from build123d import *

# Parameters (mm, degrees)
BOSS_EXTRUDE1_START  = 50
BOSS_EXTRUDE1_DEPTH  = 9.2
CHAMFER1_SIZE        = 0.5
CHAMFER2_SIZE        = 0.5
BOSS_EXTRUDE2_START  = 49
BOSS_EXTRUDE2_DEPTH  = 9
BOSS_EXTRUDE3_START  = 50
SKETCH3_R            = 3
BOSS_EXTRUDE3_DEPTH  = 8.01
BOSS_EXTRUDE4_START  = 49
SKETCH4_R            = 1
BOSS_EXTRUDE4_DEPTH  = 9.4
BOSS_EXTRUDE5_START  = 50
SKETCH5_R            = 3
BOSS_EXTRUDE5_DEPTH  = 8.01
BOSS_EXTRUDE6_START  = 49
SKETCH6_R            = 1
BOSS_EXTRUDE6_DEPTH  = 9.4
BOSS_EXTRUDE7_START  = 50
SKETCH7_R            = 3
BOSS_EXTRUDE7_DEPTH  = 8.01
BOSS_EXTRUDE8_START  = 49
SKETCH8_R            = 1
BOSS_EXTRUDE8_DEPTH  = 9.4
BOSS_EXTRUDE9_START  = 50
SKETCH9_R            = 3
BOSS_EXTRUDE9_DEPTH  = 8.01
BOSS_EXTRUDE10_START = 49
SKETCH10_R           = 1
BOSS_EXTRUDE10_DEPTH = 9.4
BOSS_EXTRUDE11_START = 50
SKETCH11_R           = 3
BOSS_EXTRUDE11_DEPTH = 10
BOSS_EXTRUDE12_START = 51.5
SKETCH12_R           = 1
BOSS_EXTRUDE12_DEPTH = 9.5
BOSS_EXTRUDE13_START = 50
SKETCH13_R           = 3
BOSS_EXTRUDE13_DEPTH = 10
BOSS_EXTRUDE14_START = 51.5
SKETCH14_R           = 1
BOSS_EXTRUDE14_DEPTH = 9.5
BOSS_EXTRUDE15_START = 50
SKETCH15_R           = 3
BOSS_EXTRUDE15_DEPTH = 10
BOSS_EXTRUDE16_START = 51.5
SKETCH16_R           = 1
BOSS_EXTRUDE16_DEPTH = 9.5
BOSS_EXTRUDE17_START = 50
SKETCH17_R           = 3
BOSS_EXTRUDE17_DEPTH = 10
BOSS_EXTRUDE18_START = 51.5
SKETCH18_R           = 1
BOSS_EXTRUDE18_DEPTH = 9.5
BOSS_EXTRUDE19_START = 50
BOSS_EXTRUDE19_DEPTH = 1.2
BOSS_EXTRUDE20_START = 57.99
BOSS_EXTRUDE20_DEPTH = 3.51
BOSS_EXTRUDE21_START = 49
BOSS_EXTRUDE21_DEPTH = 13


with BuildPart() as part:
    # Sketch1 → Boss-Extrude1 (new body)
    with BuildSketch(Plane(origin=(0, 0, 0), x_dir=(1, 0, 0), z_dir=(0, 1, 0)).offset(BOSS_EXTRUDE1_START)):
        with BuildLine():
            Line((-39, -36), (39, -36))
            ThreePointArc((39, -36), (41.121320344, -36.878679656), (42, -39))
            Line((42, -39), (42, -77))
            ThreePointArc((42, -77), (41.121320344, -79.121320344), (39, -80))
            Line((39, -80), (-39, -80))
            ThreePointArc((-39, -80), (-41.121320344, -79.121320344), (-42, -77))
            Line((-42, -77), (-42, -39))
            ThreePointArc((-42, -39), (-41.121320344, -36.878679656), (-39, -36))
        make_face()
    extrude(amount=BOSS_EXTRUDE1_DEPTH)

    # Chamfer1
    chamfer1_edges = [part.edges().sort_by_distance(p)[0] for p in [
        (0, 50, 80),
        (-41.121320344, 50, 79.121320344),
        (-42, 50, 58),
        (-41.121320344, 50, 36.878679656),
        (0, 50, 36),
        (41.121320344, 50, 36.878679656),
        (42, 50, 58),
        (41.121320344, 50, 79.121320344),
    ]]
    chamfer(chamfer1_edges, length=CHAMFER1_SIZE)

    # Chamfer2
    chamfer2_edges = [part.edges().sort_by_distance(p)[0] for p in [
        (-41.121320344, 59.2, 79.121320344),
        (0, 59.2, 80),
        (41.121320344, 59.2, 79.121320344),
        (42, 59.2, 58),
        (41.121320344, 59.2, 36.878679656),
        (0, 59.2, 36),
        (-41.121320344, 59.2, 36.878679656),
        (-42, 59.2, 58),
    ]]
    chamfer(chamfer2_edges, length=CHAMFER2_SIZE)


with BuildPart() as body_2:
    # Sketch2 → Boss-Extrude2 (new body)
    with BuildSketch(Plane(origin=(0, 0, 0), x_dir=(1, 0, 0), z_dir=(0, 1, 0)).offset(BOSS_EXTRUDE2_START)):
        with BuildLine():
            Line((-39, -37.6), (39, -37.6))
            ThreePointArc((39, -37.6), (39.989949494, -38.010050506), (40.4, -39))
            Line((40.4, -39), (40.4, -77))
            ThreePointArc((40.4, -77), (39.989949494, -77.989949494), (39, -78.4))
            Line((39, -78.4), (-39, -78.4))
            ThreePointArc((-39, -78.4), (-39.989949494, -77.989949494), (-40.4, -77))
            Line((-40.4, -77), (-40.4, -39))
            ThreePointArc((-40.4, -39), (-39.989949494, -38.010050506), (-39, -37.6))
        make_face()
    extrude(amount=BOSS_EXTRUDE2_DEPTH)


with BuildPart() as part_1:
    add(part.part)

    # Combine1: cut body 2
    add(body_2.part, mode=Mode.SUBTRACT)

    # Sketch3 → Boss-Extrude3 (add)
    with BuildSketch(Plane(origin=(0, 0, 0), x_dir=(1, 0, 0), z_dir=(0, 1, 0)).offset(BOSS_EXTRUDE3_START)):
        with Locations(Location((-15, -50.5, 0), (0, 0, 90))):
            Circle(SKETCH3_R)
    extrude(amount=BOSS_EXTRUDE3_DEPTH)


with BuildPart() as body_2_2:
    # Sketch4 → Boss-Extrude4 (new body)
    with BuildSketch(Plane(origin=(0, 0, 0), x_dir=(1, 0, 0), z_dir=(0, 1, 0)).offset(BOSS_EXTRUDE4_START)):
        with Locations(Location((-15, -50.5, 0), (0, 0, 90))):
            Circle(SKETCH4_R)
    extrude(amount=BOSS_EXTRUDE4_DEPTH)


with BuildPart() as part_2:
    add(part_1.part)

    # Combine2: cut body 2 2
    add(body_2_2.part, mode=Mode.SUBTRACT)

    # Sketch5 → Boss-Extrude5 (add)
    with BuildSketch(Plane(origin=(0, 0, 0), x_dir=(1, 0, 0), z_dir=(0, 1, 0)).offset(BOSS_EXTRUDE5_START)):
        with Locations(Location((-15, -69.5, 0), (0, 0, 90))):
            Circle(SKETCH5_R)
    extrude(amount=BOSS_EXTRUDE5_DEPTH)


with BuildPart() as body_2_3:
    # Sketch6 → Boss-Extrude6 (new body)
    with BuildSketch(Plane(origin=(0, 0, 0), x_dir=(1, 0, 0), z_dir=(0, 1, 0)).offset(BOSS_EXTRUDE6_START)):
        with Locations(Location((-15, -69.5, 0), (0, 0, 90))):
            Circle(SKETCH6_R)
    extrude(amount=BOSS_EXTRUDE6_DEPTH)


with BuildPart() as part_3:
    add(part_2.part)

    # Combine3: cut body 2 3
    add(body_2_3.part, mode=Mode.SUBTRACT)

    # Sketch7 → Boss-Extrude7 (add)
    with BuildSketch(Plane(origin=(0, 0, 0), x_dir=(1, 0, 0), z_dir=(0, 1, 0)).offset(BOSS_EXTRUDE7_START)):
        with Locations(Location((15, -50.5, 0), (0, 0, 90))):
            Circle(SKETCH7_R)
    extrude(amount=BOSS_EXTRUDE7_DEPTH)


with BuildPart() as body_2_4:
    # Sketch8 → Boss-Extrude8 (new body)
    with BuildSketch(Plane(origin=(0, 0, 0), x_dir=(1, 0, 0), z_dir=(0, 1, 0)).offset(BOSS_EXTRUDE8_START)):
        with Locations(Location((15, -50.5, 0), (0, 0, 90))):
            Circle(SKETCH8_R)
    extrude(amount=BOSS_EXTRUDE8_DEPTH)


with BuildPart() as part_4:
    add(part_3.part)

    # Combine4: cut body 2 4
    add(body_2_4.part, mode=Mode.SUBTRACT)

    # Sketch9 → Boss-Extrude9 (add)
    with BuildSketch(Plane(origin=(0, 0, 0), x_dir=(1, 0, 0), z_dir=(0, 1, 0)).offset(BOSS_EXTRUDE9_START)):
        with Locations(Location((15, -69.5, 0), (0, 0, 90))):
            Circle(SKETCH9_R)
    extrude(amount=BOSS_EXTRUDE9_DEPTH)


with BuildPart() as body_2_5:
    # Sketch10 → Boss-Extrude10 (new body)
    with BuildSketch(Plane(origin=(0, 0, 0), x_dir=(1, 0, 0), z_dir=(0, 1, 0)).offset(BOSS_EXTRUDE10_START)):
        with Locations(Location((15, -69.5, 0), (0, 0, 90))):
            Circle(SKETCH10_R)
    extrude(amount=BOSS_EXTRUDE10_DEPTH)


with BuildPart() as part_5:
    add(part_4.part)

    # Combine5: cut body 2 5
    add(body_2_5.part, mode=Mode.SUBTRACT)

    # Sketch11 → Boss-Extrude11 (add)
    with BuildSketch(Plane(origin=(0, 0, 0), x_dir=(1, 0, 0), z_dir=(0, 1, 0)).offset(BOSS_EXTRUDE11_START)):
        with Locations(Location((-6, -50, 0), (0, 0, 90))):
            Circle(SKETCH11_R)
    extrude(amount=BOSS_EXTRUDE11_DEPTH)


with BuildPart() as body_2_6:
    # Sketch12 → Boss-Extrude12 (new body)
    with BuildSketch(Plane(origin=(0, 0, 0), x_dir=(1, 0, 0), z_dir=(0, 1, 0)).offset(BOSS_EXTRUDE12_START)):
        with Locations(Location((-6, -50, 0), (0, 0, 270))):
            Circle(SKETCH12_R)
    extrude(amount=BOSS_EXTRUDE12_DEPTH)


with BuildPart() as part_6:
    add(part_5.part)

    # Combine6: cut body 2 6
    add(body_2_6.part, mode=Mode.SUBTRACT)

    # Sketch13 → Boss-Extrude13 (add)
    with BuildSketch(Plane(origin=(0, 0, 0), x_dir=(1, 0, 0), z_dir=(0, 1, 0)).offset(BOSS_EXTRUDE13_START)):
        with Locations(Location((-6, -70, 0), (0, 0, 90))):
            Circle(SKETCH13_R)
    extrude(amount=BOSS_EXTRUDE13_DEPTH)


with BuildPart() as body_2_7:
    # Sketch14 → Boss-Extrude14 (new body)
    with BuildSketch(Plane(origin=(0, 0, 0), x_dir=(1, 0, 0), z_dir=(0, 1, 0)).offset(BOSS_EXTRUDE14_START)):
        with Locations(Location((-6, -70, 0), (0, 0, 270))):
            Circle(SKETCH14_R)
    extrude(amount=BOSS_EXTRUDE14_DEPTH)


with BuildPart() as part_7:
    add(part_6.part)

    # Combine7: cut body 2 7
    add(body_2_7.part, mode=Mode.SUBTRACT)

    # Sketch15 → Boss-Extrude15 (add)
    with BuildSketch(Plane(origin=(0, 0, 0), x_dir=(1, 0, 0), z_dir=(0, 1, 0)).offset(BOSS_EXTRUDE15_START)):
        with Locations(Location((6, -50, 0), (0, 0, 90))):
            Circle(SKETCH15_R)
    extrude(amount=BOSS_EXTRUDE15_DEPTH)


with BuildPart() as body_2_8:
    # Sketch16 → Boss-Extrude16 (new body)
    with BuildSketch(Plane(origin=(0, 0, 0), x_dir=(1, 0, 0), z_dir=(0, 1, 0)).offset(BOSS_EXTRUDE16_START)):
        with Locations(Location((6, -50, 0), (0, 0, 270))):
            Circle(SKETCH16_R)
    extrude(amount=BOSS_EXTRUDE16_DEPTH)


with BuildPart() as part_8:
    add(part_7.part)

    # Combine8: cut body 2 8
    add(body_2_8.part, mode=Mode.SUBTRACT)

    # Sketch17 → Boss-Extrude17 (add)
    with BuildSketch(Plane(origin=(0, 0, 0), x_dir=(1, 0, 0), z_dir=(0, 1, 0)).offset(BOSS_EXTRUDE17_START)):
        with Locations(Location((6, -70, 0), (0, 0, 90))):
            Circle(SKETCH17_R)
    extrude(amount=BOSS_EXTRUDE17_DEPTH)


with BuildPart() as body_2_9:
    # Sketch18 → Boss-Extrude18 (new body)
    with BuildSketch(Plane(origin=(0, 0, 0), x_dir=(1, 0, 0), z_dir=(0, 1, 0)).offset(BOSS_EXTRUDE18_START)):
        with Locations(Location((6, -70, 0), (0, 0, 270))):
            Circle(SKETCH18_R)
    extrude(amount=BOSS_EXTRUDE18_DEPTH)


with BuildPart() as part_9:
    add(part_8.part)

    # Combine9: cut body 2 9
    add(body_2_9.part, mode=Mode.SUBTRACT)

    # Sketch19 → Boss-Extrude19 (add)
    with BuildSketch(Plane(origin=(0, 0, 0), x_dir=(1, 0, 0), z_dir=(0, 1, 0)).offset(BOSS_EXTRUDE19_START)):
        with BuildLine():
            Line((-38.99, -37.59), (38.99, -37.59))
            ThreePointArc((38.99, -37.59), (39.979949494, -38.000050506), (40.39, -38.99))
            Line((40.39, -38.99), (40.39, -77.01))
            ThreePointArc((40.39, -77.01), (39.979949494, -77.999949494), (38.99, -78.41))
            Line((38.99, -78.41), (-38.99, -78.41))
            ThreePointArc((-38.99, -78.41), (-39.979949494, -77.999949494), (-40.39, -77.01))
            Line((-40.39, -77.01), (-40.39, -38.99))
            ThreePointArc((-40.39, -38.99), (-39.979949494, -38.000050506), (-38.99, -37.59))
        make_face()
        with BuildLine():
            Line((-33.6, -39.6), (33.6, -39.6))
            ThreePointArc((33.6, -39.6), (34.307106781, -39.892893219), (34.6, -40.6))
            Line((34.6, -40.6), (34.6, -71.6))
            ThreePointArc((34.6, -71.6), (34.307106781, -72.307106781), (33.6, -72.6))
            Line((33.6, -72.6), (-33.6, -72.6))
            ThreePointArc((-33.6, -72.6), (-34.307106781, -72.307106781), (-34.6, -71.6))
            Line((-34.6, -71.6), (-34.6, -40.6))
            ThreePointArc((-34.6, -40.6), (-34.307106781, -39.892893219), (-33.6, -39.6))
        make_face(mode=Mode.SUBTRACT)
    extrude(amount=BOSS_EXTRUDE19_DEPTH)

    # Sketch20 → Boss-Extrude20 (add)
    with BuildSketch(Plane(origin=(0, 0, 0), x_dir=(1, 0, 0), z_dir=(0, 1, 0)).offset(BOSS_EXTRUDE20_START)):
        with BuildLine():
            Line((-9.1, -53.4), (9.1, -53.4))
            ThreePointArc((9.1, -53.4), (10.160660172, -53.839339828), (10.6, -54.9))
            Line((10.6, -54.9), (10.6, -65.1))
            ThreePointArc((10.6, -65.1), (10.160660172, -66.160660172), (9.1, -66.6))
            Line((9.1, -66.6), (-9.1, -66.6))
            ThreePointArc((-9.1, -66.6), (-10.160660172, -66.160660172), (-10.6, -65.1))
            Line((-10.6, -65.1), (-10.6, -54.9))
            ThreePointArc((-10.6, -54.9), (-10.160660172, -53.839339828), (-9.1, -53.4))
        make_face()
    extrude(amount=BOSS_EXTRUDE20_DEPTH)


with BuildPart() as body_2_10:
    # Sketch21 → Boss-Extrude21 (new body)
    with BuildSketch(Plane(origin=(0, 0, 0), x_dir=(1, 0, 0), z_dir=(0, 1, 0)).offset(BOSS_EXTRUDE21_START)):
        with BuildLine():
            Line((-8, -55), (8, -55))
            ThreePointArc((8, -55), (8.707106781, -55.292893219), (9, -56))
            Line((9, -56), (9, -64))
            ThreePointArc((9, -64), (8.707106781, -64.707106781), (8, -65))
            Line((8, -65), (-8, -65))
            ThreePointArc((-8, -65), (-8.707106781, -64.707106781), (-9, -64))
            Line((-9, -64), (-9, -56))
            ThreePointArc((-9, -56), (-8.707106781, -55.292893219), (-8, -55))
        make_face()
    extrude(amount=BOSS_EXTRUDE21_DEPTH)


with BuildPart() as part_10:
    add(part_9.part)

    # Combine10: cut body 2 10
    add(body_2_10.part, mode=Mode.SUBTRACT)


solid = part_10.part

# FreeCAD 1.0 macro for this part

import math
import FreeCAD as App
import Part
import Sketcher
from FreeCAD import Vector


def edges_at(feature, points):
    """Names of the edges that pass closest to the given points."""
    edges = feature.Shape.Edges
    near = lambda p: min(range(len(edges)), key=lambda i: edges[i].distToShape(Part.Vertex(*p))[0])
    return sorted({f"Edge{near(p) + 1}" for p in points})

doc = App.newDocument("Part")
body = doc.addObject("PartDesign::Body", "Body")

sketch1 = body.newObject("Sketcher::SketchObject", "Sketch")
sketch1.AttachmentSupport = (doc.getObject("XZ_Plane"), [""])
sketch1.MapMode = "FlatFace"
sketch1.AttachmentOffset = App.Placement(Vector(0, 0, -50), App.Rotation())
sketch1.addGeometry(Part.LineSegment(Vector(39, 36, 0), Vector(-39, 36, 0)), False)
sketch1.addGeometry(Part.ArcOfCircle(Part.Circle(Vector(-39, 39, 0), Vector(0, 0, 1), 3), math.radians(180), math.radians(270)), False)
sketch1.addGeometry(Part.LineSegment(Vector(-42, 39, 0), Vector(-42, 77, 0)), False)
sketch1.addGeometry(Part.ArcOfCircle(Part.Circle(Vector(-39, 77, 0), Vector(0, 0, 1), 3), math.radians(90), math.radians(180)), False)
sketch1.addGeometry(Part.LineSegment(Vector(-39, 80, 0), Vector(39, 80, 0)), False)
sketch1.addGeometry(Part.ArcOfCircle(Part.Circle(Vector(39, 77, 0), Vector(0, 0, 1), 3), math.radians(0), math.radians(90)), False)
sketch1.addGeometry(Part.LineSegment(Vector(42, 77, 0), Vector(42, 39, 0)), False)
sketch1.addGeometry(Part.ArcOfCircle(Part.Circle(Vector(39, 39, 0), Vector(0, 0, 1), 3), math.radians(-90), math.radians(0)), False)
sketch1.addConstraint(Sketcher.Constraint("Tangent", 0, 2, 1, 2))
sketch1.addConstraint(Sketcher.Constraint("Tangent", 1, 1, 2, 1))
sketch1.addConstraint(Sketcher.Constraint("Tangent", 2, 2, 3, 2))
sketch1.addConstraint(Sketcher.Constraint("Tangent", 3, 1, 4, 1))
sketch1.addConstraint(Sketcher.Constraint("Tangent", 4, 2, 5, 2))
sketch1.addConstraint(Sketcher.Constraint("Tangent", 5, 1, 6, 1))
sketch1.addConstraint(Sketcher.Constraint("Tangent", 6, 2, 7, 2))
sketch1.addConstraint(Sketcher.Constraint("Tangent", 7, 1, 0, 1))
sketch1.addConstraint(Sketcher.Constraint("Horizontal", 0))
sketch1.addConstraint(Sketcher.Constraint("Vertical", 2))
sketch1.addConstraint(Sketcher.Constraint("Horizontal", 4))
sketch1.addConstraint(Sketcher.Constraint("Vertical", 6))
sketch1.addConstraint(Sketcher.Constraint("Equal", 1, 3))
sketch1.addConstraint(Sketcher.Constraint("Equal", 3, 5))
sketch1.addConstraint(Sketcher.Constraint("Equal", 5, 7))
sketch1.addConstraint(Sketcher.Constraint("Radius", 1, 3.0))
sketch1.addConstraint(Sketcher.Constraint("DistanceX", 0, 2, 0, 1, 78.0))
sketch1.addConstraint(Sketcher.Constraint("DistanceY", 2, 1, 2, 2, 38.0))
sketch1.addConstraint(Sketcher.Constraint("DistanceX", 1, 3, -1, 1, 39.0))
sketch1.addConstraint(Sketcher.Constraint("DistanceY", -1, 1, 1, 3, 39.0))
pad1 = body.newObject("PartDesign::Pad", "Pad")
pad1.Profile = sketch1
pad1.Length = 9.2
pad1.Reversed = True
doc.recompute()

chamfer = body.newObject("PartDesign::Chamfer", "Chamfer")
chamfer.Base = (pad1, edges_at(pad1, [
    (0, 50, 80),
    (-41.121, 50, 79.121),
    (-42, 50, 58),
    (-41.121, 50, 36.879),
    (0, 50, 36),
    (41.121, 50, 36.879),
    (42, 50, 58),
    (41.121, 50, 79.121),
]))
chamfer.Size = 0.5
doc.recompute()

chamfer2 = body.newObject("PartDesign::Chamfer", "Chamfer001")
chamfer2.Base = (chamfer, edges_at(chamfer, [
    (-41.121, 59.2, 79.121),
    (0, 59.2, 80),
    (41.121, 59.2, 79.121),
    (42, 59.2, 58),
    (41.121, 59.2, 36.879),
    (0, 59.2, 36),
    (-41.121, 59.2, 36.879),
    (-42, 59.2, 58),
]))
chamfer2.Size = 0.5
body2 = doc.addObject("PartDesign::Body", "Body001")

sketch2 = body2.newObject("Sketcher::SketchObject", "Sketch001")
sketch2.AttachmentSupport = (doc.getObject("XZ_Plane001"), [""])
sketch2.MapMode = "FlatFace"
sketch2.AttachmentOffset = App.Placement(Vector(0, 0, -49), App.Rotation())
sketch2.addGeometry(Part.LineSegment(Vector(39, 37.6, 0), Vector(-39, 37.6, 0)), False)
sketch2.addGeometry(Part.ArcOfCircle(Part.Circle(Vector(-39, 39, 0), Vector(0, 0, 1), 1.4), math.radians(180), math.radians(270)), False)
sketch2.addGeometry(Part.LineSegment(Vector(-40.4, 39, 0), Vector(-40.4, 77, 0)), False)
sketch2.addGeometry(Part.ArcOfCircle(Part.Circle(Vector(-39, 77, 0), Vector(0, 0, 1), 1.4), math.radians(90), math.radians(180)), False)
sketch2.addGeometry(Part.LineSegment(Vector(-39, 78.4, 0), Vector(39, 78.4, 0)), False)
sketch2.addGeometry(Part.ArcOfCircle(Part.Circle(Vector(39, 77, 0), Vector(0, 0, 1), 1.4), math.radians(0), math.radians(90)), False)
sketch2.addGeometry(Part.LineSegment(Vector(40.4, 77, 0), Vector(40.4, 39, 0)), False)
sketch2.addGeometry(Part.ArcOfCircle(Part.Circle(Vector(39, 39, 0), Vector(0, 0, 1), 1.4), math.radians(-90), math.radians(0)), False)
sketch2.addConstraint(Sketcher.Constraint("Tangent", 0, 2, 1, 2))
sketch2.addConstraint(Sketcher.Constraint("Tangent", 1, 1, 2, 1))
sketch2.addConstraint(Sketcher.Constraint("Tangent", 2, 2, 3, 2))
sketch2.addConstraint(Sketcher.Constraint("Tangent", 3, 1, 4, 1))
sketch2.addConstraint(Sketcher.Constraint("Tangent", 4, 2, 5, 2))
sketch2.addConstraint(Sketcher.Constraint("Tangent", 5, 1, 6, 1))
sketch2.addConstraint(Sketcher.Constraint("Tangent", 6, 2, 7, 2))
sketch2.addConstraint(Sketcher.Constraint("Tangent", 7, 1, 0, 1))
sketch2.addConstraint(Sketcher.Constraint("Horizontal", 0))
sketch2.addConstraint(Sketcher.Constraint("Vertical", 2))
sketch2.addConstraint(Sketcher.Constraint("Horizontal", 4))
sketch2.addConstraint(Sketcher.Constraint("Vertical", 6))
sketch2.addConstraint(Sketcher.Constraint("Equal", 1, 3))
sketch2.addConstraint(Sketcher.Constraint("Equal", 3, 5))
sketch2.addConstraint(Sketcher.Constraint("Equal", 5, 7))
sketch2.addConstraint(Sketcher.Constraint("Radius", 1, 1.4))
sketch2.addConstraint(Sketcher.Constraint("DistanceX", 0, 2, 0, 1, 78.0))
sketch2.addConstraint(Sketcher.Constraint("DistanceY", 2, 1, 2, 2, 38.0))
sketch2.addConstraint(Sketcher.Constraint("DistanceX", 1, 3, -1, 1, 39.0))
sketch2.addConstraint(Sketcher.Constraint("DistanceY", -1, 1, 1, 3, 39.0))
pad2 = body2.newObject("PartDesign::Pad", "Pad001")
pad2.Profile = sketch2
pad2.Length = 9
pad2.Reversed = True
doc.recompute()

boolean = body.newObject("PartDesign::Boolean", "Boolean")
boolean.Type = "Cut"
boolean.addObjects([body2])

sketch3 = body.newObject("Sketcher::SketchObject", "Sketch002")
sketch3.AttachmentSupport = (doc.getObject("XZ_Plane"), [""])
sketch3.MapMode = "FlatFace"
sketch3.AttachmentOffset = App.Placement(Vector(0, 0, -50), App.Rotation())
sketch3.addGeometry(Part.Circle(Vector(-15, 50.5, 0), Vector(0, 0, 1), 3), False)
sketch3.addConstraint(Sketcher.Constraint("Diameter", 0, 6.0))
sketch3.addConstraint(Sketcher.Constraint("DistanceX", 0, 3, -1, 1, 15.0))
sketch3.addConstraint(Sketcher.Constraint("DistanceY", -1, 1, 0, 3, 50.5))
pad3 = body.newObject("PartDesign::Pad", "Pad002")
pad3.Profile = sketch3
pad3.Length = 8.01
pad3.Reversed = True
body3 = doc.addObject("PartDesign::Body", "Body002")

sketch4 = body3.newObject("Sketcher::SketchObject", "Sketch003")
sketch4.AttachmentSupport = (doc.getObject("XZ_Plane002"), [""])
sketch4.MapMode = "FlatFace"
sketch4.AttachmentOffset = App.Placement(Vector(0, 0, -49), App.Rotation())
sketch4.addGeometry(Part.Circle(Vector(-15, 50.5, 0), Vector(0, 0, 1), 1), False)
sketch4.addConstraint(Sketcher.Constraint("Diameter", 0, 2.0))
sketch4.addConstraint(Sketcher.Constraint("DistanceX", 0, 3, -1, 1, 15.0))
sketch4.addConstraint(Sketcher.Constraint("DistanceY", -1, 1, 0, 3, 50.5))
pad4 = body3.newObject("PartDesign::Pad", "Pad003")
pad4.Profile = sketch4
pad4.Length = 9.4
pad4.Reversed = True
doc.recompute()

boolean2 = body.newObject("PartDesign::Boolean", "Boolean001")
boolean2.Type = "Cut"
boolean2.addObjects([body3])

sketch5 = body.newObject("Sketcher::SketchObject", "Sketch004")
sketch5.AttachmentSupport = (doc.getObject("XZ_Plane"), [""])
sketch5.MapMode = "FlatFace"
sketch5.AttachmentOffset = App.Placement(Vector(0, 0, -50), App.Rotation())
sketch5.addGeometry(Part.Circle(Vector(-15, 69.5, 0), Vector(0, 0, 1), 3), False)
sketch5.addConstraint(Sketcher.Constraint("Diameter", 0, 6.0))
sketch5.addConstraint(Sketcher.Constraint("DistanceX", 0, 3, -1, 1, 15.0))
sketch5.addConstraint(Sketcher.Constraint("DistanceY", -1, 1, 0, 3, 69.5))
pad5 = body.newObject("PartDesign::Pad", "Pad004")
pad5.Profile = sketch5
pad5.Length = 8.01
pad5.Reversed = True
body4 = doc.addObject("PartDesign::Body", "Body003")

sketch6 = body4.newObject("Sketcher::SketchObject", "Sketch005")
sketch6.AttachmentSupport = (doc.getObject("XZ_Plane003"), [""])
sketch6.MapMode = "FlatFace"
sketch6.AttachmentOffset = App.Placement(Vector(0, 0, -49), App.Rotation())
sketch6.addGeometry(Part.Circle(Vector(-15, 69.5, 0), Vector(0, 0, 1), 1), False)
sketch6.addConstraint(Sketcher.Constraint("Diameter", 0, 2.0))
sketch6.addConstraint(Sketcher.Constraint("DistanceX", 0, 3, -1, 1, 15.0))
sketch6.addConstraint(Sketcher.Constraint("DistanceY", -1, 1, 0, 3, 69.5))
pad6 = body4.newObject("PartDesign::Pad", "Pad005")
pad6.Profile = sketch6
pad6.Length = 9.4
pad6.Reversed = True
doc.recompute()

boolean3 = body.newObject("PartDesign::Boolean", "Boolean002")
boolean3.Type = "Cut"
boolean3.addObjects([body4])

sketch7 = body.newObject("Sketcher::SketchObject", "Sketch006")
sketch7.AttachmentSupport = (doc.getObject("XZ_Plane"), [""])
sketch7.MapMode = "FlatFace"
sketch7.AttachmentOffset = App.Placement(Vector(0, 0, -50), App.Rotation())
sketch7.addGeometry(Part.Circle(Vector(15, 50.5, 0), Vector(0, 0, 1), 3), False)
sketch7.addConstraint(Sketcher.Constraint("Diameter", 0, 6.0))
sketch7.addConstraint(Sketcher.Constraint("DistanceX", -1, 1, 0, 3, 15.0))
sketch7.addConstraint(Sketcher.Constraint("DistanceY", -1, 1, 0, 3, 50.5))
pad7 = body.newObject("PartDesign::Pad", "Pad006")
pad7.Profile = sketch7
pad7.Length = 8.01
pad7.Reversed = True
body5 = doc.addObject("PartDesign::Body", "Body004")

sketch8 = body5.newObject("Sketcher::SketchObject", "Sketch007")
sketch8.AttachmentSupport = (doc.getObject("XZ_Plane004"), [""])
sketch8.MapMode = "FlatFace"
sketch8.AttachmentOffset = App.Placement(Vector(0, 0, -49), App.Rotation())
sketch8.addGeometry(Part.Circle(Vector(15, 50.5, 0), Vector(0, 0, 1), 1), False)
sketch8.addConstraint(Sketcher.Constraint("Diameter", 0, 2.0))
sketch8.addConstraint(Sketcher.Constraint("DistanceX", -1, 1, 0, 3, 15.0))
sketch8.addConstraint(Sketcher.Constraint("DistanceY", -1, 1, 0, 3, 50.5))
pad8 = body5.newObject("PartDesign::Pad", "Pad007")
pad8.Profile = sketch8
pad8.Length = 9.4
pad8.Reversed = True
doc.recompute()

boolean4 = body.newObject("PartDesign::Boolean", "Boolean003")
boolean4.Type = "Cut"
boolean4.addObjects([body5])

sketch9 = body.newObject("Sketcher::SketchObject", "Sketch008")
sketch9.AttachmentSupport = (doc.getObject("XZ_Plane"), [""])
sketch9.MapMode = "FlatFace"
sketch9.AttachmentOffset = App.Placement(Vector(0, 0, -50), App.Rotation())
sketch9.addGeometry(Part.Circle(Vector(15, 69.5, 0), Vector(0, 0, 1), 3), False)
sketch9.addConstraint(Sketcher.Constraint("Diameter", 0, 6.0))
sketch9.addConstraint(Sketcher.Constraint("DistanceX", -1, 1, 0, 3, 15.0))
sketch9.addConstraint(Sketcher.Constraint("DistanceY", -1, 1, 0, 3, 69.5))
pad9 = body.newObject("PartDesign::Pad", "Pad008")
pad9.Profile = sketch9
pad9.Length = 8.01
pad9.Reversed = True
body6 = doc.addObject("PartDesign::Body", "Body005")

sketch10 = body6.newObject("Sketcher::SketchObject", "Sketch009")
sketch10.AttachmentSupport = (doc.getObject("XZ_Plane005"), [""])
sketch10.MapMode = "FlatFace"
sketch10.AttachmentOffset = App.Placement(Vector(0, 0, -49), App.Rotation())
sketch10.addGeometry(Part.Circle(Vector(15, 69.5, 0), Vector(0, 0, 1), 1), False)
sketch10.addConstraint(Sketcher.Constraint("Diameter", 0, 2.0))
sketch10.addConstraint(Sketcher.Constraint("DistanceX", -1, 1, 0, 3, 15.0))
sketch10.addConstraint(Sketcher.Constraint("DistanceY", -1, 1, 0, 3, 69.5))
pad10 = body6.newObject("PartDesign::Pad", "Pad009")
pad10.Profile = sketch10
pad10.Length = 9.4
pad10.Reversed = True
doc.recompute()

boolean5 = body.newObject("PartDesign::Boolean", "Boolean004")
boolean5.Type = "Cut"
boolean5.addObjects([body6])

sketch11 = body.newObject("Sketcher::SketchObject", "Sketch010")
sketch11.AttachmentSupport = (doc.getObject("XZ_Plane"), [""])
sketch11.MapMode = "FlatFace"
sketch11.AttachmentOffset = App.Placement(Vector(0, 0, -50), App.Rotation())
sketch11.addGeometry(Part.Circle(Vector(-6, 50, 0), Vector(0, 0, 1), 3), False)
sketch11.addConstraint(Sketcher.Constraint("Diameter", 0, 6.0))
sketch11.addConstraint(Sketcher.Constraint("DistanceX", 0, 3, -1, 1, 6.0))
sketch11.addConstraint(Sketcher.Constraint("DistanceY", -1, 1, 0, 3, 50.0))
pad11 = body.newObject("PartDesign::Pad", "Pad010")
pad11.Profile = sketch11
pad11.Length = 10
pad11.Reversed = True
body7 = doc.addObject("PartDesign::Body", "Body006")

sketch12 = body7.newObject("Sketcher::SketchObject", "Sketch011")
sketch12.AttachmentSupport = (doc.getObject("XZ_Plane006"), [""])
sketch12.MapMode = "FlatFace"
sketch12.AttachmentOffset = App.Placement(Vector(0, 0, -51.5), App.Rotation())
sketch12.addGeometry(Part.Circle(Vector(-6, 50, 0), Vector(0, 0, 1), 1), False)
sketch12.addConstraint(Sketcher.Constraint("Diameter", 0, 2.0))
sketch12.addConstraint(Sketcher.Constraint("DistanceX", 0, 3, -1, 1, 6.0))
sketch12.addConstraint(Sketcher.Constraint("DistanceY", -1, 1, 0, 3, 50.0))
pad12 = body7.newObject("PartDesign::Pad", "Pad011")
pad12.Profile = sketch12
pad12.Length = 9.5
pad12.Reversed = True
doc.recompute()

boolean6 = body.newObject("PartDesign::Boolean", "Boolean005")
boolean6.Type = "Cut"
boolean6.addObjects([body7])

sketch13 = body.newObject("Sketcher::SketchObject", "Sketch012")
sketch13.AttachmentSupport = (doc.getObject("XZ_Plane"), [""])
sketch13.MapMode = "FlatFace"
sketch13.AttachmentOffset = App.Placement(Vector(0, 0, -50), App.Rotation())
sketch13.addGeometry(Part.Circle(Vector(-6, 70, 0), Vector(0, 0, 1), 3), False)
sketch13.addConstraint(Sketcher.Constraint("Diameter", 0, 6.0))
sketch13.addConstraint(Sketcher.Constraint("DistanceX", 0, 3, -1, 1, 6.0))
sketch13.addConstraint(Sketcher.Constraint("DistanceY", -1, 1, 0, 3, 70.0))
pad13 = body.newObject("PartDesign::Pad", "Pad012")
pad13.Profile = sketch13
pad13.Length = 10
pad13.Reversed = True
body8 = doc.addObject("PartDesign::Body", "Body007")

sketch14 = body8.newObject("Sketcher::SketchObject", "Sketch013")
sketch14.AttachmentSupport = (doc.getObject("XZ_Plane007"), [""])
sketch14.MapMode = "FlatFace"
sketch14.AttachmentOffset = App.Placement(Vector(0, 0, -51.5), App.Rotation())
sketch14.addGeometry(Part.Circle(Vector(-6, 70, 0), Vector(0, 0, 1), 1), False)
sketch14.addConstraint(Sketcher.Constraint("Diameter", 0, 2.0))
sketch14.addConstraint(Sketcher.Constraint("DistanceX", 0, 3, -1, 1, 6.0))
sketch14.addConstraint(Sketcher.Constraint("DistanceY", -1, 1, 0, 3, 70.0))
pad14 = body8.newObject("PartDesign::Pad", "Pad013")
pad14.Profile = sketch14
pad14.Length = 9.5
pad14.Reversed = True
doc.recompute()

boolean7 = body.newObject("PartDesign::Boolean", "Boolean006")
boolean7.Type = "Cut"
boolean7.addObjects([body8])

sketch15 = body.newObject("Sketcher::SketchObject", "Sketch014")
sketch15.AttachmentSupport = (doc.getObject("XZ_Plane"), [""])
sketch15.MapMode = "FlatFace"
sketch15.AttachmentOffset = App.Placement(Vector(0, 0, -50), App.Rotation())
sketch15.addGeometry(Part.Circle(Vector(6, 50, 0), Vector(0, 0, 1), 3), False)
sketch15.addConstraint(Sketcher.Constraint("Diameter", 0, 6.0))
sketch15.addConstraint(Sketcher.Constraint("DistanceX", -1, 1, 0, 3, 6.0))
sketch15.addConstraint(Sketcher.Constraint("DistanceY", -1, 1, 0, 3, 50.0))
pad15 = body.newObject("PartDesign::Pad", "Pad014")
pad15.Profile = sketch15
pad15.Length = 10
pad15.Reversed = True
body9 = doc.addObject("PartDesign::Body", "Body008")

sketch16 = body9.newObject("Sketcher::SketchObject", "Sketch015")
sketch16.AttachmentSupport = (doc.getObject("XZ_Plane008"), [""])
sketch16.MapMode = "FlatFace"
sketch16.AttachmentOffset = App.Placement(Vector(0, 0, -51.5), App.Rotation())
sketch16.addGeometry(Part.Circle(Vector(6, 50, 0), Vector(0, 0, 1), 1), False)
sketch16.addConstraint(Sketcher.Constraint("Diameter", 0, 2.0))
sketch16.addConstraint(Sketcher.Constraint("DistanceX", -1, 1, 0, 3, 6.0))
sketch16.addConstraint(Sketcher.Constraint("DistanceY", -1, 1, 0, 3, 50.0))
pad16 = body9.newObject("PartDesign::Pad", "Pad015")
pad16.Profile = sketch16
pad16.Length = 9.5
pad16.Reversed = True
doc.recompute()

boolean8 = body.newObject("PartDesign::Boolean", "Boolean007")
boolean8.Type = "Cut"
boolean8.addObjects([body9])

sketch17 = body.newObject("Sketcher::SketchObject", "Sketch016")
sketch17.AttachmentSupport = (doc.getObject("XZ_Plane"), [""])
sketch17.MapMode = "FlatFace"
sketch17.AttachmentOffset = App.Placement(Vector(0, 0, -50), App.Rotation())
sketch17.addGeometry(Part.Circle(Vector(6, 70, 0), Vector(0, 0, 1), 3), False)
sketch17.addConstraint(Sketcher.Constraint("Diameter", 0, 6.0))
sketch17.addConstraint(Sketcher.Constraint("DistanceX", -1, 1, 0, 3, 6.0))
sketch17.addConstraint(Sketcher.Constraint("DistanceY", -1, 1, 0, 3, 70.0))
pad17 = body.newObject("PartDesign::Pad", "Pad016")
pad17.Profile = sketch17
pad17.Length = 10
pad17.Reversed = True
body10 = doc.addObject("PartDesign::Body", "Body009")

sketch18 = body10.newObject("Sketcher::SketchObject", "Sketch017")
sketch18.AttachmentSupport = (doc.getObject("XZ_Plane009"), [""])
sketch18.MapMode = "FlatFace"
sketch18.AttachmentOffset = App.Placement(Vector(0, 0, -51.5), App.Rotation())
sketch18.addGeometry(Part.Circle(Vector(6, 70, 0), Vector(0, 0, 1), 1), False)
sketch18.addConstraint(Sketcher.Constraint("Diameter", 0, 2.0))
sketch18.addConstraint(Sketcher.Constraint("DistanceX", -1, 1, 0, 3, 6.0))
sketch18.addConstraint(Sketcher.Constraint("DistanceY", -1, 1, 0, 3, 70.0))
pad18 = body10.newObject("PartDesign::Pad", "Pad017")
pad18.Profile = sketch18
pad18.Length = 9.5
pad18.Reversed = True
doc.recompute()

boolean9 = body.newObject("PartDesign::Boolean", "Boolean008")
boolean9.Type = "Cut"
boolean9.addObjects([body10])

sketch19 = body.newObject("Sketcher::SketchObject", "Sketch018")
sketch19.AttachmentSupport = (doc.getObject("XZ_Plane"), [""])
sketch19.MapMode = "FlatFace"
sketch19.AttachmentOffset = App.Placement(Vector(0, 0, -50), App.Rotation())
sketch19.addGeometry(Part.LineSegment(Vector(39, 37.6, 0), Vector(-39, 37.6, 0)), False)
sketch19.addGeometry(Part.ArcOfCircle(Part.Circle(Vector(-39, 39, 0), Vector(0, 0, 1), 1.4), math.radians(180), math.radians(270)), False)
sketch19.addGeometry(Part.LineSegment(Vector(-40.4, 39, 0), Vector(-40.4, 77, 0)), False)
sketch19.addGeometry(Part.ArcOfCircle(Part.Circle(Vector(-39, 77, 0), Vector(0, 0, 1), 1.4), math.radians(90), math.radians(180)), False)
sketch19.addGeometry(Part.LineSegment(Vector(-39, 78.4, 0), Vector(39, 78.4, 0)), False)
sketch19.addGeometry(Part.ArcOfCircle(Part.Circle(Vector(39, 77, 0), Vector(0, 0, 1), 1.4), math.radians(0), math.radians(90)), False)
sketch19.addGeometry(Part.LineSegment(Vector(40.4, 77, 0), Vector(40.4, 39, 0)), False)
sketch19.addGeometry(Part.ArcOfCircle(Part.Circle(Vector(39, 39, 0), Vector(0, 0, 1), 1.4), math.radians(-90), math.radians(0)), False)
sketch19.addGeometry(Part.LineSegment(Vector(-33.6, 39.6, 0), Vector(33.6, 39.6, 0)), False)
sketch19.addGeometry(Part.ArcOfCircle(Part.Circle(Vector(33.6, 40.6, 0), Vector(0, 0, 1), 1), math.radians(-90), math.radians(0)), False)
sketch19.addGeometry(Part.LineSegment(Vector(34.6, 40.6, 0), Vector(34.6, 71.6, 0)), False)
sketch19.addGeometry(Part.ArcOfCircle(Part.Circle(Vector(33.6, 71.6, 0), Vector(0, 0, 1), 1), math.radians(0), math.radians(90)), False)
sketch19.addGeometry(Part.LineSegment(Vector(33.6, 72.6, 0), Vector(-33.6, 72.6, 0)), False)
sketch19.addGeometry(Part.ArcOfCircle(Part.Circle(Vector(-33.6, 71.6, 0), Vector(0, 0, 1), 1), math.radians(90), math.radians(180)), False)
sketch19.addGeometry(Part.LineSegment(Vector(-34.6, 71.6, 0), Vector(-34.6, 40.6, 0)), False)
sketch19.addGeometry(Part.ArcOfCircle(Part.Circle(Vector(-33.6, 40.6, 0), Vector(0, 0, 1), 1), math.radians(-180), math.radians(-90)), False)
sketch19.addConstraint(Sketcher.Constraint("Tangent", 0, 2, 1, 2))
sketch19.addConstraint(Sketcher.Constraint("Tangent", 1, 1, 2, 1))
sketch19.addConstraint(Sketcher.Constraint("Tangent", 2, 2, 3, 2))
sketch19.addConstraint(Sketcher.Constraint("Tangent", 3, 1, 4, 1))
sketch19.addConstraint(Sketcher.Constraint("Tangent", 4, 2, 5, 2))
sketch19.addConstraint(Sketcher.Constraint("Tangent", 5, 1, 6, 1))
sketch19.addConstraint(Sketcher.Constraint("Tangent", 6, 2, 7, 2))
sketch19.addConstraint(Sketcher.Constraint("Tangent", 7, 1, 0, 1))
sketch19.addConstraint(Sketcher.Constraint("Tangent", 8, 2, 9, 1))
sketch19.addConstraint(Sketcher.Constraint("Tangent", 9, 2, 10, 1))
sketch19.addConstraint(Sketcher.Constraint("Tangent", 10, 2, 11, 1))
sketch19.addConstraint(Sketcher.Constraint("Tangent", 11, 2, 12, 1))
sketch19.addConstraint(Sketcher.Constraint("Tangent", 12, 2, 13, 1))
sketch19.addConstraint(Sketcher.Constraint("Tangent", 13, 2, 14, 1))
sketch19.addConstraint(Sketcher.Constraint("Tangent", 14, 2, 15, 1))
sketch19.addConstraint(Sketcher.Constraint("Tangent", 15, 2, 8, 1))
sketch19.addConstraint(Sketcher.Constraint("Horizontal", 0))
sketch19.addConstraint(Sketcher.Constraint("Vertical", 2))
sketch19.addConstraint(Sketcher.Constraint("Horizontal", 4))
sketch19.addConstraint(Sketcher.Constraint("Vertical", 6))
sketch19.addConstraint(Sketcher.Constraint("Horizontal", 8))
sketch19.addConstraint(Sketcher.Constraint("Vertical", 10))
sketch19.addConstraint(Sketcher.Constraint("Horizontal", 12))
sketch19.addConstraint(Sketcher.Constraint("Vertical", 14))
sketch19.addConstraint(Sketcher.Constraint("Equal", 1, 3))
sketch19.addConstraint(Sketcher.Constraint("Equal", 3, 5))
sketch19.addConstraint(Sketcher.Constraint("Equal", 5, 7))
sketch19.addConstraint(Sketcher.Constraint("Equal", 9, 11))
sketch19.addConstraint(Sketcher.Constraint("Equal", 11, 13))
sketch19.addConstraint(Sketcher.Constraint("Equal", 13, 15))
sketch19.addConstraint(Sketcher.Constraint("Radius", 9, 1.0))
sketch19.addConstraint(Sketcher.Constraint("Radius", 1, 1.4))
sketch19.addConstraint(Sketcher.Constraint("DistanceY", 10, 1, 10, 2, 31.0))
sketch19.addConstraint(Sketcher.Constraint("DistanceX", 8, 1, 8, 2, 67.2))
sketch19.addConstraint(Sketcher.Constraint("DistanceX", 0, 2, 0, 1, 77.98))
sketch19.addConstraint(Sketcher.Constraint("DistanceY", 2, 1, 2, 2, 38.02))
sketch19.addConstraint(Sketcher.Constraint("DistanceX", -1, 1, 9, 3, 33.6))
sketch19.addConstraint(Sketcher.Constraint("DistanceY", -1, 1, 9, 3, 40.6))
sketch19.addConstraint(Sketcher.Constraint("DistanceX", 1, 3, -1, 1, 38.99))
sketch19.addConstraint(Sketcher.Constraint("DistanceY", -1, 1, 1, 3, 38.99))
pad19 = body.newObject("PartDesign::Pad", "Pad018")
pad19.Profile = sketch19
pad19.Length = 1.2
pad19.Reversed = True

sketch20 = body.newObject("Sketcher::SketchObject", "Sketch019")
sketch20.AttachmentSupport = (doc.getObject("XZ_Plane"), [""])
sketch20.MapMode = "FlatFace"
sketch20.AttachmentOffset = App.Placement(Vector(0, 0, -57.99), App.Rotation())
sketch20.addGeometry(Part.LineSegment(Vector(9.1, 53.4, 0), Vector(-9.1, 53.4, 0)), False)
sketch20.addGeometry(Part.ArcOfCircle(Part.Circle(Vector(-9.1, 54.9, 0), Vector(0, 0, 1), 1.5), math.radians(180), math.radians(270)), False)
sketch20.addGeometry(Part.LineSegment(Vector(-10.6, 54.9, 0), Vector(-10.6, 65.1, 0)), False)
sketch20.addGeometry(Part.ArcOfCircle(Part.Circle(Vector(-9.1, 65.1, 0), Vector(0, 0, 1), 1.5), math.radians(90), math.radians(180)), False)
sketch20.addGeometry(Part.LineSegment(Vector(-9.1, 66.6, 0), Vector(9.1, 66.6, 0)), False)
sketch20.addGeometry(Part.ArcOfCircle(Part.Circle(Vector(9.1, 65.1, 0), Vector(0, 0, 1), 1.5), math.radians(0), math.radians(90)), False)
sketch20.addGeometry(Part.LineSegment(Vector(10.6, 65.1, 0), Vector(10.6, 54.9, 0)), False)
sketch20.addGeometry(Part.ArcOfCircle(Part.Circle(Vector(9.1, 54.9, 0), Vector(0, 0, 1), 1.5), math.radians(-90), math.radians(0)), False)
sketch20.addConstraint(Sketcher.Constraint("Tangent", 0, 2, 1, 2))
sketch20.addConstraint(Sketcher.Constraint("Tangent", 1, 1, 2, 1))
sketch20.addConstraint(Sketcher.Constraint("Tangent", 2, 2, 3, 2))
sketch20.addConstraint(Sketcher.Constraint("Tangent", 3, 1, 4, 1))
sketch20.addConstraint(Sketcher.Constraint("Tangent", 4, 2, 5, 2))
sketch20.addConstraint(Sketcher.Constraint("Tangent", 5, 1, 6, 1))
sketch20.addConstraint(Sketcher.Constraint("Tangent", 6, 2, 7, 2))
sketch20.addConstraint(Sketcher.Constraint("Tangent", 7, 1, 0, 1))
sketch20.addConstraint(Sketcher.Constraint("Horizontal", 0))
sketch20.addConstraint(Sketcher.Constraint("Vertical", 2))
sketch20.addConstraint(Sketcher.Constraint("Horizontal", 4))
sketch20.addConstraint(Sketcher.Constraint("Vertical", 6))
sketch20.addConstraint(Sketcher.Constraint("Equal", 1, 3))
sketch20.addConstraint(Sketcher.Constraint("Equal", 3, 5))
sketch20.addConstraint(Sketcher.Constraint("Equal", 5, 7))
sketch20.addConstraint(Sketcher.Constraint("Radius", 1, 1.5))
sketch20.addConstraint(Sketcher.Constraint("DistanceX", 0, 2, 0, 1, 18.2))
sketch20.addConstraint(Sketcher.Constraint("DistanceY", 2, 1, 2, 2, 10.2))
sketch20.addConstraint(Sketcher.Constraint("DistanceX", 1, 3, -1, 1, 9.1))
sketch20.addConstraint(Sketcher.Constraint("DistanceY", -1, 1, 1, 3, 54.9))
pad20 = body.newObject("PartDesign::Pad", "Pad019")
pad20.Profile = sketch20
pad20.Length = 3.51
pad20.Reversed = True
body11 = doc.addObject("PartDesign::Body", "Body010")

sketch21 = body11.newObject("Sketcher::SketchObject", "Sketch020")
sketch21.AttachmentSupport = (doc.getObject("XZ_Plane010"), [""])
sketch21.MapMode = "FlatFace"
sketch21.AttachmentOffset = App.Placement(Vector(0, 0, -49), App.Rotation())
sketch21.addGeometry(Part.LineSegment(Vector(8, 55, 0), Vector(-8, 55, 0)), False)
sketch21.addGeometry(Part.ArcOfCircle(Part.Circle(Vector(-8, 56, 0), Vector(0, 0, 1), 1), math.radians(-180), math.radians(-90)), False)
sketch21.addGeometry(Part.LineSegment(Vector(-9, 56, 0), Vector(-9, 64, 0)), False)
sketch21.addGeometry(Part.ArcOfCircle(Part.Circle(Vector(-8, 64, 0), Vector(0, 0, 1), 1), math.radians(90), math.radians(180)), False)
sketch21.addGeometry(Part.LineSegment(Vector(-8, 65, 0), Vector(8, 65, 0)), False)
sketch21.addGeometry(Part.ArcOfCircle(Part.Circle(Vector(8, 64, 0), Vector(0, 0, 1), 1), math.radians(0), math.radians(90)), False)
sketch21.addGeometry(Part.LineSegment(Vector(9, 64, 0), Vector(9, 56, 0)), False)
sketch21.addGeometry(Part.ArcOfCircle(Part.Circle(Vector(8, 56, 0), Vector(0, 0, 1), 1), math.radians(-90), math.radians(0)), False)
sketch21.addConstraint(Sketcher.Constraint("Tangent", 0, 2, 1, 2))
sketch21.addConstraint(Sketcher.Constraint("Tangent", 1, 1, 2, 1))
sketch21.addConstraint(Sketcher.Constraint("Tangent", 2, 2, 3, 2))
sketch21.addConstraint(Sketcher.Constraint("Tangent", 3, 1, 4, 1))
sketch21.addConstraint(Sketcher.Constraint("Tangent", 4, 2, 5, 2))
sketch21.addConstraint(Sketcher.Constraint("Tangent", 5, 1, 6, 1))
sketch21.addConstraint(Sketcher.Constraint("Tangent", 6, 2, 7, 2))
sketch21.addConstraint(Sketcher.Constraint("Tangent", 7, 1, 0, 1))
sketch21.addConstraint(Sketcher.Constraint("Horizontal", 0))
sketch21.addConstraint(Sketcher.Constraint("Vertical", 2))
sketch21.addConstraint(Sketcher.Constraint("Horizontal", 4))
sketch21.addConstraint(Sketcher.Constraint("Vertical", 6))
sketch21.addConstraint(Sketcher.Constraint("Equal", 1, 3))
sketch21.addConstraint(Sketcher.Constraint("Equal", 3, 5))
sketch21.addConstraint(Sketcher.Constraint("Equal", 5, 7))
sketch21.addConstraint(Sketcher.Constraint("Radius", 1, 1.0))
sketch21.addConstraint(Sketcher.Constraint("DistanceX", 0, 2, 0, 1, 16.0))
sketch21.addConstraint(Sketcher.Constraint("DistanceY", 2, 1, 2, 2, 8.0))
sketch21.addConstraint(Sketcher.Constraint("DistanceX", 1, 3, -1, 1, 8.0))
sketch21.addConstraint(Sketcher.Constraint("DistanceY", -1, 1, 1, 3, 56.0))
pad21 = body11.newObject("PartDesign::Pad", "Pad020")
pad21.Profile = sketch21
pad21.Length = 13
pad21.Reversed = True
doc.recompute()

boolean10 = body.newObject("PartDesign::Boolean", "Boolean009")
boolean10.Type = "Cut"
boolean10.addObjects([body11])

doc.recompute()
